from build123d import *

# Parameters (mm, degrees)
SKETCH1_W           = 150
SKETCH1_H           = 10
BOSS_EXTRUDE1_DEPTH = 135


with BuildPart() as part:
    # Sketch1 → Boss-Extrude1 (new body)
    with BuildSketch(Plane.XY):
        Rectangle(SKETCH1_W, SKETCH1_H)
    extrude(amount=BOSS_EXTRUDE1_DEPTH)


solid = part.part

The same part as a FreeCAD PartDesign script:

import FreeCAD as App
import Part
import Sketcher
from FreeCAD import Vector


def add_polygon(sketch, points):
    """Adds a closed chain of lines whose ends are joined by coincident constraints."""
    first, n = sketch.GeometryCount, len(points)
    for a, b in zip(points, points[1:] + points[:1]):
        sketch.addGeometry(Part.LineSegment(App.Vector(*a, 0), App.Vector(*b, 0)), False)
    for i in range(n):
        sketch.addConstraint(Sketcher.Constraint("Coincident", first + i, 2, first + (i + 1) % n, 1))

doc = App.newDocument("Part")
body = doc.addObject("PartDesign::Body", "Body")

# Sketch on XY plane
sketch1 = body.newObject("Sketcher::SketchObject", "Sketch")
sketch1.AttachmentSupport = (doc.getObject("XY_Plane"), [""])
sketch1.MapMode = "FlatFace"
add_polygon(sketch1, [(-75, 5), (-75, -5), (75, -5), (75, 5)])  # lines 0-3
sketch1.addConstraint(Sketcher.Constraint("Vertical", 0))
sketch1.addConstraint(Sketcher.Constraint("Horizontal", 1))
sketch1.addConstraint(Sketcher.Constraint("Vertical", 2))
sketch1.addConstraint(Sketcher.Constraint("Horizontal", 3))
sketch1.addConstraint(Sketcher.Constraint("Symmetric", 0, 2, 2, 2, -1, 1))
sketch1.addConstraint(Sketcher.Constraint("DistanceX", 1, 1, 1, 2, 150.0))
sketch1.addConstraint(Sketcher.Constraint("DistanceY", 0, 2, 0, 1, 10.0))
pad1 = body.newObject("PartDesign::Pad", "Pad")
pad1.Profile = sketch1
pad1.Length = 135

doc.recompute()
